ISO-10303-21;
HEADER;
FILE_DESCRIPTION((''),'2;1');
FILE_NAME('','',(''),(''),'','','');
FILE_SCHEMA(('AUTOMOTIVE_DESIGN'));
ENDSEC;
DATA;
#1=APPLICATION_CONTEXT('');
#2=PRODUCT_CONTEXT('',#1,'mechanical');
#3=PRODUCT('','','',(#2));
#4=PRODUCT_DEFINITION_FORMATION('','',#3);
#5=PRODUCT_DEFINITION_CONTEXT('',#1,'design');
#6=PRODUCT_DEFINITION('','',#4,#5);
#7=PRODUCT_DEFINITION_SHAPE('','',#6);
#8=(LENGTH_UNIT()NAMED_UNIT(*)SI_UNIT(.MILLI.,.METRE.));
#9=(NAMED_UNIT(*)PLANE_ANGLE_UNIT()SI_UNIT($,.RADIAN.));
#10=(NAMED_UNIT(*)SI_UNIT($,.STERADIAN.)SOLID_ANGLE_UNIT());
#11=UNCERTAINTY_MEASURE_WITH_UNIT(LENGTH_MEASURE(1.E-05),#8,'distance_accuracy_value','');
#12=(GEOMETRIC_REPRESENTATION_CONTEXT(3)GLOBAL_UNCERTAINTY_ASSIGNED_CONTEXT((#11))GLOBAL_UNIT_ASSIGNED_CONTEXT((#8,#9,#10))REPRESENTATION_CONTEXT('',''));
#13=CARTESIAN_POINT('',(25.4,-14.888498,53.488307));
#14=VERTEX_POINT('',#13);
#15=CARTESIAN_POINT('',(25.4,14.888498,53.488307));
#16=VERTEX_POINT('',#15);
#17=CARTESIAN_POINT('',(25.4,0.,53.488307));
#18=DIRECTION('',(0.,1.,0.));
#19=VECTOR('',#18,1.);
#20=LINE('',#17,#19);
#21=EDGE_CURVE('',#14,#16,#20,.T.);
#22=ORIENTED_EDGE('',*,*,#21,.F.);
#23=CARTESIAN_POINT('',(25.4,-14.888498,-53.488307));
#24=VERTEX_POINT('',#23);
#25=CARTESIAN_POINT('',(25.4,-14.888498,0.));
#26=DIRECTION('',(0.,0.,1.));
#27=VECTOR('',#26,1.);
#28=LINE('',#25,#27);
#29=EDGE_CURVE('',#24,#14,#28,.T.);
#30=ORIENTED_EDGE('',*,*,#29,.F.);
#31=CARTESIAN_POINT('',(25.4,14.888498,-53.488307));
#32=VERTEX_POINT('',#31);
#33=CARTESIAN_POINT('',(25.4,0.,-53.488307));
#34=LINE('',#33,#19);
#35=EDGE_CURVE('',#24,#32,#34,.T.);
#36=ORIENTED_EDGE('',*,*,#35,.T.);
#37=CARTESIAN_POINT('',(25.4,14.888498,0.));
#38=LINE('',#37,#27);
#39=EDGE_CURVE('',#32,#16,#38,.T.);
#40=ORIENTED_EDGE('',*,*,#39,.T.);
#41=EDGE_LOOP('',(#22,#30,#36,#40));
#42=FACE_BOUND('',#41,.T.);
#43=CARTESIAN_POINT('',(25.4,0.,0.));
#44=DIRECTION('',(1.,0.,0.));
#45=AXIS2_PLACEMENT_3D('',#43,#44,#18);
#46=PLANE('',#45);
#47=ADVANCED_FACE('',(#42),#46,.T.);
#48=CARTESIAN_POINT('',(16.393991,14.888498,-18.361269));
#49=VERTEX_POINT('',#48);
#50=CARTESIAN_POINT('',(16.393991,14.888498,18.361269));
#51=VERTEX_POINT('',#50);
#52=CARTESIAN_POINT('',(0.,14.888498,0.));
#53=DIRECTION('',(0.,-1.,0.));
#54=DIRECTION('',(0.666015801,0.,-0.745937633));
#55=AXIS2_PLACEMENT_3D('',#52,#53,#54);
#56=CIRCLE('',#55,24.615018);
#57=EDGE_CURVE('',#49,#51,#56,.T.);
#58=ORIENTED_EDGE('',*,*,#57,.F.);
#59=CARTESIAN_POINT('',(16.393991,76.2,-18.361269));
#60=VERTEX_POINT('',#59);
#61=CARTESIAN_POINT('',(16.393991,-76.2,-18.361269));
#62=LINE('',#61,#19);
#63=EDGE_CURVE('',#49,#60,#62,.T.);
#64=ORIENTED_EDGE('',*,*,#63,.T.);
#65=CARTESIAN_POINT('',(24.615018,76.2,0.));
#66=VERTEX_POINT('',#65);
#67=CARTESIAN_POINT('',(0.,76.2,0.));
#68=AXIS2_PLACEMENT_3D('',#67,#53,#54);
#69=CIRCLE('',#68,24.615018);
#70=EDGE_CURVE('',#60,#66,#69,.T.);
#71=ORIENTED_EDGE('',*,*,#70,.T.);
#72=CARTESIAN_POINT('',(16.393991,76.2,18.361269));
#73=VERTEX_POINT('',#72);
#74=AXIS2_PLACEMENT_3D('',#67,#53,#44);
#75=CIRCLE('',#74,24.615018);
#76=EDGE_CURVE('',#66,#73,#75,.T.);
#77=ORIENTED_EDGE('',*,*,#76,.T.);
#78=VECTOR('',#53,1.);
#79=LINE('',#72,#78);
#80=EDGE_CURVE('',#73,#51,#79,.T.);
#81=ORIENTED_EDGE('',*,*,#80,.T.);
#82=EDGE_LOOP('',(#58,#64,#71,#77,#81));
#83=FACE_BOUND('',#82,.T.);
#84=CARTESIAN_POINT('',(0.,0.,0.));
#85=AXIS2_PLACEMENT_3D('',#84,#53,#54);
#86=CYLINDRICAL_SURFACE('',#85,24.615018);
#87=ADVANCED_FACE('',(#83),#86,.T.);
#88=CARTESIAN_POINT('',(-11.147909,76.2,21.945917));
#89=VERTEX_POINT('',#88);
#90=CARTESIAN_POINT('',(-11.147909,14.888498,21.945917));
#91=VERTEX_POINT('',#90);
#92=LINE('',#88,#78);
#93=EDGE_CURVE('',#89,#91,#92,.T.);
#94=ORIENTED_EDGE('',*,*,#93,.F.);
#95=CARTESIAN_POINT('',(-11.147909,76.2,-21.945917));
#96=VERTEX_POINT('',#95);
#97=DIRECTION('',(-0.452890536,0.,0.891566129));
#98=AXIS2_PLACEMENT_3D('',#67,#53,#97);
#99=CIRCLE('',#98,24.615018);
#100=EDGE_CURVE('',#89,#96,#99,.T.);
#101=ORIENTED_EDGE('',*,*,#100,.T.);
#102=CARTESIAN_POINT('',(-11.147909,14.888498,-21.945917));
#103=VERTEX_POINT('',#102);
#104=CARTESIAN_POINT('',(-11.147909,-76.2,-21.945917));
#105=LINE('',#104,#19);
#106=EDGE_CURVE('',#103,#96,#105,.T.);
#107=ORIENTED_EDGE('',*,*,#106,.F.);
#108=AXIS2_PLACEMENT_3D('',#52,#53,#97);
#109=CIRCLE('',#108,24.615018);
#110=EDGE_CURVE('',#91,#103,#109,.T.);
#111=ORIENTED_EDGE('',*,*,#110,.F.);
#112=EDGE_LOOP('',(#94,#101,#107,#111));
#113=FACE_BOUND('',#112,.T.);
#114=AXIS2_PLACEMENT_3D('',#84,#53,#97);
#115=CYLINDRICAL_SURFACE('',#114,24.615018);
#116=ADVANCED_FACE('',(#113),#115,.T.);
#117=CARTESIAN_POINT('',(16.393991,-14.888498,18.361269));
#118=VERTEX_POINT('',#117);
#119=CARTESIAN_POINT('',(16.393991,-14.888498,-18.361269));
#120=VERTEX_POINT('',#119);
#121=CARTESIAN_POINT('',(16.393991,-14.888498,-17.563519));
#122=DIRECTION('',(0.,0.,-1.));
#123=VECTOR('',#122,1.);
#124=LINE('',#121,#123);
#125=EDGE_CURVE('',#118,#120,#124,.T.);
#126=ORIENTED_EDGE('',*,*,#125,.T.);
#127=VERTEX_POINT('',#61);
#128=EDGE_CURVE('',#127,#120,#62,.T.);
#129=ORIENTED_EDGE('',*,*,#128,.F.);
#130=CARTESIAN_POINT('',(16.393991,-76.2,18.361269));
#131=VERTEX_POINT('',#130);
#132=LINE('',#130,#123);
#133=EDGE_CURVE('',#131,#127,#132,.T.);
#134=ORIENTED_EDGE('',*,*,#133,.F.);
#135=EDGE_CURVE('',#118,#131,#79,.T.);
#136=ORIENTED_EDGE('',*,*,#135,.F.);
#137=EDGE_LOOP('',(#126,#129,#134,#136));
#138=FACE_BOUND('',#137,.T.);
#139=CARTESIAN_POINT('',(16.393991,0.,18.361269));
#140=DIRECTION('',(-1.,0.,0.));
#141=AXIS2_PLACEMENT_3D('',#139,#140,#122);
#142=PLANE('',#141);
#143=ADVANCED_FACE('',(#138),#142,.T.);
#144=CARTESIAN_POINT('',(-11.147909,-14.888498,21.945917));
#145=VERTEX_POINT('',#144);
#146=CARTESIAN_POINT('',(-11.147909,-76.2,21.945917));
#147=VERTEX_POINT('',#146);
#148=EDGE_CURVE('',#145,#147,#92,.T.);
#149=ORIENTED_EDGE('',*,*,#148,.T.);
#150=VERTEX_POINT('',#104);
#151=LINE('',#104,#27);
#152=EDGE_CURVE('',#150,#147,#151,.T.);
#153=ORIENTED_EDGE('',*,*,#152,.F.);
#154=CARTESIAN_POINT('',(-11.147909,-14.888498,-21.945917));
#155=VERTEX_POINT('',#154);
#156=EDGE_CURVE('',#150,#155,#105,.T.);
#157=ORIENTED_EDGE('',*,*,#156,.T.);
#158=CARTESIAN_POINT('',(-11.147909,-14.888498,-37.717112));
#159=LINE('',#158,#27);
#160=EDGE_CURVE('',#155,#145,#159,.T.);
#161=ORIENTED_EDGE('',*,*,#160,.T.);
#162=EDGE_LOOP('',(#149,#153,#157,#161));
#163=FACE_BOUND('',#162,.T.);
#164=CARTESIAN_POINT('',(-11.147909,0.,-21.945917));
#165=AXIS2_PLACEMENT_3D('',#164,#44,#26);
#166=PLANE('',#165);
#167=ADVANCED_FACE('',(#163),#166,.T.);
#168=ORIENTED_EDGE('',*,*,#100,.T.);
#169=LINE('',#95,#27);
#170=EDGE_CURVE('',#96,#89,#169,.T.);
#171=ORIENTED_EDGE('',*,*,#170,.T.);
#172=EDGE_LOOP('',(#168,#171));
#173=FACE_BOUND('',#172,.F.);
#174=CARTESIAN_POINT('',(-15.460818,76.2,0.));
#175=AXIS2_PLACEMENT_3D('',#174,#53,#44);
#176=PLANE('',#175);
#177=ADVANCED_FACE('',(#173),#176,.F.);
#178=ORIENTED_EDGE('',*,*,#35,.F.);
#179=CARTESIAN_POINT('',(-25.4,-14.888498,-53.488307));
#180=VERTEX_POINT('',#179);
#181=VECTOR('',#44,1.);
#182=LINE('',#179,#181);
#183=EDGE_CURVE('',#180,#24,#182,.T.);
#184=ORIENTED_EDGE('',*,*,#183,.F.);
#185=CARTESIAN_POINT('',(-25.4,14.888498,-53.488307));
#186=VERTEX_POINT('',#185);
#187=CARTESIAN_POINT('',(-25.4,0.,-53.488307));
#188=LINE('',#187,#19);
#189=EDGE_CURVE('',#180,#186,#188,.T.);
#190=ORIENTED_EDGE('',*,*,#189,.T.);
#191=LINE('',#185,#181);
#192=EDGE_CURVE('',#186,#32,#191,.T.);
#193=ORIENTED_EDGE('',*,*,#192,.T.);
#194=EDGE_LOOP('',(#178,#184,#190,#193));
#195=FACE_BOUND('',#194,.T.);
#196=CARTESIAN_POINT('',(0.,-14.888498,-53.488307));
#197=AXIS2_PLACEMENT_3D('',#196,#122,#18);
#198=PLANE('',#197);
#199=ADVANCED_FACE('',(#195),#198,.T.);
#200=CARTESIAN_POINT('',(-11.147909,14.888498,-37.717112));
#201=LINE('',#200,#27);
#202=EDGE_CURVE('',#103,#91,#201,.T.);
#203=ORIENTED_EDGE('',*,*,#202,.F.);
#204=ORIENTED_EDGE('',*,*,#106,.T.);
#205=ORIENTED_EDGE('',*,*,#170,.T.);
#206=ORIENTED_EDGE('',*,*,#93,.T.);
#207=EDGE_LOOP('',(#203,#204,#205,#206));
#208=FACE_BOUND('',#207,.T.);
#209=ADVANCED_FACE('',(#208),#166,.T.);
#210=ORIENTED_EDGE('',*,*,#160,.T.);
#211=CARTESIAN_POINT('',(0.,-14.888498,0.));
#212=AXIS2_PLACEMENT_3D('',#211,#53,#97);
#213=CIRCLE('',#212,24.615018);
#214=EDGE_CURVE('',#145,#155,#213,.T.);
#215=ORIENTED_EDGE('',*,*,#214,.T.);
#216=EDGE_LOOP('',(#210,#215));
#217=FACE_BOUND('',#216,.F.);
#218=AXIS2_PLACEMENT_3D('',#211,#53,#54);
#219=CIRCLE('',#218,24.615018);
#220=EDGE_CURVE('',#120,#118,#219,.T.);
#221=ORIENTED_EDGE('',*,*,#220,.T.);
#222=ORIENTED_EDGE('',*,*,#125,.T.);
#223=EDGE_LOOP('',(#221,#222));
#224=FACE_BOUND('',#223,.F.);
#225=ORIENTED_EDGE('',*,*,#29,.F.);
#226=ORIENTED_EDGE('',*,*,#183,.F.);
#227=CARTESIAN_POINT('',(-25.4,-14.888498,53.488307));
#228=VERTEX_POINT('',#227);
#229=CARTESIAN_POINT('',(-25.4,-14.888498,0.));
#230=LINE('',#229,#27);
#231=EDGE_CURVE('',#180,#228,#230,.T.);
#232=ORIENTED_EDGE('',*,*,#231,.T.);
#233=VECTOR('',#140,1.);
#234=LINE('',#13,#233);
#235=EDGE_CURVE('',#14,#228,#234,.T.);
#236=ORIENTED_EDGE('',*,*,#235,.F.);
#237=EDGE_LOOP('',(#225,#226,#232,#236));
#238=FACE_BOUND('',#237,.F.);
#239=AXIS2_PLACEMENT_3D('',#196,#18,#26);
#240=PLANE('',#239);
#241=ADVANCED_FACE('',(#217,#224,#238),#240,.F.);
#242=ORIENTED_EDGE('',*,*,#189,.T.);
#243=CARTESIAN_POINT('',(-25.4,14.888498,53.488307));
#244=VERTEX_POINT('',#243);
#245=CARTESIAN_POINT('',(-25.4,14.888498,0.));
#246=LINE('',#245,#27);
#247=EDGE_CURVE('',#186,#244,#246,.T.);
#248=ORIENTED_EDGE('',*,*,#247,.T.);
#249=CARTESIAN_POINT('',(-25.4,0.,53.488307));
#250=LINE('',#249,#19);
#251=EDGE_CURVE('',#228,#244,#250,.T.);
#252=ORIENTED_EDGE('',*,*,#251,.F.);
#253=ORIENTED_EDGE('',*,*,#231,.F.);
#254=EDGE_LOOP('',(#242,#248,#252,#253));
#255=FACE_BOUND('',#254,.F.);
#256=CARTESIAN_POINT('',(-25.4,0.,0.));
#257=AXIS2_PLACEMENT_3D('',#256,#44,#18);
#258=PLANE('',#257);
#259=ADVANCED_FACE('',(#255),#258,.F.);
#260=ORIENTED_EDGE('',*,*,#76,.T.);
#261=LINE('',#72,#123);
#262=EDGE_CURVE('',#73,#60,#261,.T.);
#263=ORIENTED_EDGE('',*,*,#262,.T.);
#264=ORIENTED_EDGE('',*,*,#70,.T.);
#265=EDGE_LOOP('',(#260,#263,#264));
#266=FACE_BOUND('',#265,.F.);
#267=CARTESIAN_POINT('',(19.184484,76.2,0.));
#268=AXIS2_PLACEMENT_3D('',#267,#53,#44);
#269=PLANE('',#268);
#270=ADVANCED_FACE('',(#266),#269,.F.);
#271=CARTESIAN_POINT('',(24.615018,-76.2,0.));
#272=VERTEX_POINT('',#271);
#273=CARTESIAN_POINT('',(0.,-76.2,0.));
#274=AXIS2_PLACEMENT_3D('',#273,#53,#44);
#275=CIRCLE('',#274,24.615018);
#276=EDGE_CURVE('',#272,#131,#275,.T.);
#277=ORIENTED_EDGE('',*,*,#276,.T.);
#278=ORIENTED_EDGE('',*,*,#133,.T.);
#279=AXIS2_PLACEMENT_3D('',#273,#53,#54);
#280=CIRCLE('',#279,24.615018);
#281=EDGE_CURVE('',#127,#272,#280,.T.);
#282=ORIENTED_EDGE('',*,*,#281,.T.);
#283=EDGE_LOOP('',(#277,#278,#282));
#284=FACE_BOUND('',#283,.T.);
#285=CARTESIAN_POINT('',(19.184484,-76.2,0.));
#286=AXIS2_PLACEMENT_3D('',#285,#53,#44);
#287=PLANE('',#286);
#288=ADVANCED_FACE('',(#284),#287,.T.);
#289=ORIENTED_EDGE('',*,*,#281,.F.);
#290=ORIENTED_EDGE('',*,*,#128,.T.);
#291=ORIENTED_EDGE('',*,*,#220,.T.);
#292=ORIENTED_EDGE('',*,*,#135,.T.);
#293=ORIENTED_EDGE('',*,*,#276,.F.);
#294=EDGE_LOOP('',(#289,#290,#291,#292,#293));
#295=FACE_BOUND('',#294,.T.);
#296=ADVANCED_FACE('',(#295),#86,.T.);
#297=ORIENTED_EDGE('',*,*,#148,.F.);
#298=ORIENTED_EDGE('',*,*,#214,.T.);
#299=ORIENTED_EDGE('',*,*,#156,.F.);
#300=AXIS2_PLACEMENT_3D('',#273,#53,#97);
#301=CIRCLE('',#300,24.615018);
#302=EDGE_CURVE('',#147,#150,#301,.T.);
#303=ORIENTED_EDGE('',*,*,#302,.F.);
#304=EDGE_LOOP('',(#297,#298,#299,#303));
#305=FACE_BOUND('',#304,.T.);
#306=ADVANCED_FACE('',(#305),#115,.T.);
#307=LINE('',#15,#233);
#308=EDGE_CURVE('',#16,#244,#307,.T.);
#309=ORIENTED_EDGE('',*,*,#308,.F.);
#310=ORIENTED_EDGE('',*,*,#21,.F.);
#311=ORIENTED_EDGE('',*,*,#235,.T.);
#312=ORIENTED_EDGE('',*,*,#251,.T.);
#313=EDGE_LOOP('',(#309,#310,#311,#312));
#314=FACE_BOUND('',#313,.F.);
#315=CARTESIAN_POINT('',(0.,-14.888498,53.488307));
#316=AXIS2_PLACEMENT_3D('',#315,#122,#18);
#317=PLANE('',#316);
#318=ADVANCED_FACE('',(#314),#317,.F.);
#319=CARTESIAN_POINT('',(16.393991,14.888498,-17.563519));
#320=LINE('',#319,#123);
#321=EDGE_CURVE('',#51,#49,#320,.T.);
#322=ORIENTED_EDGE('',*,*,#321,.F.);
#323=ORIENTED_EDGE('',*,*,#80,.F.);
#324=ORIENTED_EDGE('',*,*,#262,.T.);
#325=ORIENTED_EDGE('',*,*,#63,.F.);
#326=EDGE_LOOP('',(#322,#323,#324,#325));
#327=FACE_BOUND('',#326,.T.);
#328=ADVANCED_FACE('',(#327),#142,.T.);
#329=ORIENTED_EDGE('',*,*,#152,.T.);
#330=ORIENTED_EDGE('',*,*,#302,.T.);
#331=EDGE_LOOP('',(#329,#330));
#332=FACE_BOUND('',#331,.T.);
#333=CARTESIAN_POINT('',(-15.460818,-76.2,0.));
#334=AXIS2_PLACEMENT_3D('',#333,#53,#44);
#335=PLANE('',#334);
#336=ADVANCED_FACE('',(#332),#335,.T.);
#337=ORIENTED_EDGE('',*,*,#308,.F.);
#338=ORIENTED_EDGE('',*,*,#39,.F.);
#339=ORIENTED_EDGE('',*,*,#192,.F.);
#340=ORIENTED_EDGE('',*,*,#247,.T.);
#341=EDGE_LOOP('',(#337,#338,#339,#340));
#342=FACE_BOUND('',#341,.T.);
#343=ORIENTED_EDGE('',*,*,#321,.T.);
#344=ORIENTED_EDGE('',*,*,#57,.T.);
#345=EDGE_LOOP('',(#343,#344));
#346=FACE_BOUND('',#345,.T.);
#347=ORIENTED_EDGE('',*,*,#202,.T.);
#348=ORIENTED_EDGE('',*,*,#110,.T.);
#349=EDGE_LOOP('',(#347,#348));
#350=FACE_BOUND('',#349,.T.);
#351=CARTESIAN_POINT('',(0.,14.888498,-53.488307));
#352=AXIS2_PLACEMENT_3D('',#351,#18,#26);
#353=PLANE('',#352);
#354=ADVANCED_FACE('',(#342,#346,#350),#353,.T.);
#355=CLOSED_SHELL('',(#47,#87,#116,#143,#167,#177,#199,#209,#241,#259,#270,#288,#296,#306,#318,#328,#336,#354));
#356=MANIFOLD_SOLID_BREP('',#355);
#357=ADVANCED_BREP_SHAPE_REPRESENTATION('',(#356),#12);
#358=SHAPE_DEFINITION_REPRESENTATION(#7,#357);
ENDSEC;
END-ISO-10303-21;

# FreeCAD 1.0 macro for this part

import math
import FreeCAD as App
import Part
import Sketcher

V = App.Vector
Q = App.Units.Quantity

doc = App.newDocument("Part")
body = doc.addObject("PartDesign::Body", "Body")

# Sketch on XZ plane
sketch1 = body.newObject("Sketcher::SketchObject", "Sketch")
sketch1.AttachmentSupport = (doc.getObject("XZ_Plane"), [""])
sketch1.MapMode = "FlatFace"
sketch1.addGeometry([
    Part.LineSegment(V(-11, -22, 0), V(-11, 22, 0)),
    Part.ArcOfCircle(Part.Circle(V(0, 0, 0), V(0, 0, 1), 25), math.radians(117), math.radians(243)),
], False)
sketch1.addConstraint([
    Sketcher.Constraint("Coincident", 0, 1, 1, 2),
    Sketcher.Constraint("Coincident", 1, 1, 0, 2),
    Sketcher.Constraint("Vertical", 0),
    Sketcher.Constraint("Coincident", 1, 3, -1, 1),
    Sketcher.Constraint("Radius", 1, 24.615018),
    Sketcher.Constraint("DistanceY", 0, 1, 0, 2, 43.891833),
])
pad1 = body.newObject("PartDesign::Pad", "Pad")
pad1.Profile = sketch1
pad1.Length = Q("6 in")
pad1.Midplane = True
body2 = doc.addObject("PartDesign::Body", "Body001")

# Sketch on XZ plane
sketch2 = body2.newObject("Sketcher::SketchObject", "Sketch001")
sketch2.AttachmentSupport = (doc.getObject("XZ_Plane001"), [""])
sketch2.MapMode = "FlatFace"
sketch2.addGeometry([
    Part.ArcOfCircle(Part.Circle(V(0, 0, 0), V(0, 0, 1), 25), math.radians(-48), math.radians(0)),
    Part.ArcOfCircle(Part.Circle(V(0, 0, 0), V(0, 0, 1), 25), math.radians(0), math.radians(48)),
    Part.LineSegment(V(16, 18, 0), V(16, -18, 0)),
], False)
sketch2.addConstraint([
    Sketcher.Constraint("Tangent", 0, 2, 1, 1),
    Sketcher.Constraint("Coincident", 1, 2, 2, 1),
    Sketcher.Constraint("Coincident", 2, 2, 0, 1),
    Sketcher.Constraint("Vertical", 2),
    Sketcher.Constraint("Coincident", 0, 3, -1, 1),
    Sketcher.Constraint("Equal", 0, 1),
    Sketcher.Constraint("PointOnObject", 0, 2, -1),
    Sketcher.Constraint("Radius", 0, 24.615018),
    Sketcher.Constraint("DistanceY", 2, 2, 2, 1, 36.722537),
])
pad2 = body2.newObject("PartDesign::Pad", "Pad001")
pad2.Profile = sketch2
pad2.Length = Q("6 in")
pad2.Midplane = True
body.AllowCompound = True
doc.recompute()

boolean = body.newObject("PartDesign::Boolean", "Boolean")
boolean.Type = "Fuse"
boolean.addObjects([body2])

# Sketch on YZ plane
sketch3 = body.newObject("Sketcher::SketchObject", "Sketch002")
sketch3.AttachmentSupport = (doc.getObject("YZ_Plane"), [""])
sketch3.MapMode = "FlatFace"
sketch3.addGeometry([
    Part.LineSegment(V(-15, 53, 0), V(-15, -53, 0)),
    Part.LineSegment(V(-15, -53, 0), V(15, -53, 0)),
    Part.LineSegment(V(15, -53, 0), V(15, 53, 0)),
    Part.LineSegment(V(15, 53, 0), V(-15, 53, 0)),
], False)
sketch3.addConstraint([
    Sketcher.Constraint("Coincident", 0, 2, 1, 1),
    Sketcher.Constraint("Coincident", 1, 2, 2, 1),
    Sketcher.Constraint("Coincident", 2, 2, 3, 1),
    Sketcher.Constraint("Coincident", 3, 2, 0, 1),
    Sketcher.Constraint("Vertical", 0),
    Sketcher.Constraint("Horizontal", 1),
    Sketcher.Constraint("Vertical", 2),
    Sketcher.Constraint("Horizontal", 3),
    Sketcher.Constraint("Symmetric", 0, 2, 2, 2, -1, 1),
    Sketcher.Constraint("DistanceX", 0, 2, -1, 1, 14.888498),
    Sketcher.Constraint("DistanceY", 0, 2, 0, 1, 106.976613),
])
pad3 = body.newObject("PartDesign::Pad", "Pad002")
pad3.Profile = sketch3
pad3.Length = Q("2 in")
pad3.Midplane = True

doc.recompute()
